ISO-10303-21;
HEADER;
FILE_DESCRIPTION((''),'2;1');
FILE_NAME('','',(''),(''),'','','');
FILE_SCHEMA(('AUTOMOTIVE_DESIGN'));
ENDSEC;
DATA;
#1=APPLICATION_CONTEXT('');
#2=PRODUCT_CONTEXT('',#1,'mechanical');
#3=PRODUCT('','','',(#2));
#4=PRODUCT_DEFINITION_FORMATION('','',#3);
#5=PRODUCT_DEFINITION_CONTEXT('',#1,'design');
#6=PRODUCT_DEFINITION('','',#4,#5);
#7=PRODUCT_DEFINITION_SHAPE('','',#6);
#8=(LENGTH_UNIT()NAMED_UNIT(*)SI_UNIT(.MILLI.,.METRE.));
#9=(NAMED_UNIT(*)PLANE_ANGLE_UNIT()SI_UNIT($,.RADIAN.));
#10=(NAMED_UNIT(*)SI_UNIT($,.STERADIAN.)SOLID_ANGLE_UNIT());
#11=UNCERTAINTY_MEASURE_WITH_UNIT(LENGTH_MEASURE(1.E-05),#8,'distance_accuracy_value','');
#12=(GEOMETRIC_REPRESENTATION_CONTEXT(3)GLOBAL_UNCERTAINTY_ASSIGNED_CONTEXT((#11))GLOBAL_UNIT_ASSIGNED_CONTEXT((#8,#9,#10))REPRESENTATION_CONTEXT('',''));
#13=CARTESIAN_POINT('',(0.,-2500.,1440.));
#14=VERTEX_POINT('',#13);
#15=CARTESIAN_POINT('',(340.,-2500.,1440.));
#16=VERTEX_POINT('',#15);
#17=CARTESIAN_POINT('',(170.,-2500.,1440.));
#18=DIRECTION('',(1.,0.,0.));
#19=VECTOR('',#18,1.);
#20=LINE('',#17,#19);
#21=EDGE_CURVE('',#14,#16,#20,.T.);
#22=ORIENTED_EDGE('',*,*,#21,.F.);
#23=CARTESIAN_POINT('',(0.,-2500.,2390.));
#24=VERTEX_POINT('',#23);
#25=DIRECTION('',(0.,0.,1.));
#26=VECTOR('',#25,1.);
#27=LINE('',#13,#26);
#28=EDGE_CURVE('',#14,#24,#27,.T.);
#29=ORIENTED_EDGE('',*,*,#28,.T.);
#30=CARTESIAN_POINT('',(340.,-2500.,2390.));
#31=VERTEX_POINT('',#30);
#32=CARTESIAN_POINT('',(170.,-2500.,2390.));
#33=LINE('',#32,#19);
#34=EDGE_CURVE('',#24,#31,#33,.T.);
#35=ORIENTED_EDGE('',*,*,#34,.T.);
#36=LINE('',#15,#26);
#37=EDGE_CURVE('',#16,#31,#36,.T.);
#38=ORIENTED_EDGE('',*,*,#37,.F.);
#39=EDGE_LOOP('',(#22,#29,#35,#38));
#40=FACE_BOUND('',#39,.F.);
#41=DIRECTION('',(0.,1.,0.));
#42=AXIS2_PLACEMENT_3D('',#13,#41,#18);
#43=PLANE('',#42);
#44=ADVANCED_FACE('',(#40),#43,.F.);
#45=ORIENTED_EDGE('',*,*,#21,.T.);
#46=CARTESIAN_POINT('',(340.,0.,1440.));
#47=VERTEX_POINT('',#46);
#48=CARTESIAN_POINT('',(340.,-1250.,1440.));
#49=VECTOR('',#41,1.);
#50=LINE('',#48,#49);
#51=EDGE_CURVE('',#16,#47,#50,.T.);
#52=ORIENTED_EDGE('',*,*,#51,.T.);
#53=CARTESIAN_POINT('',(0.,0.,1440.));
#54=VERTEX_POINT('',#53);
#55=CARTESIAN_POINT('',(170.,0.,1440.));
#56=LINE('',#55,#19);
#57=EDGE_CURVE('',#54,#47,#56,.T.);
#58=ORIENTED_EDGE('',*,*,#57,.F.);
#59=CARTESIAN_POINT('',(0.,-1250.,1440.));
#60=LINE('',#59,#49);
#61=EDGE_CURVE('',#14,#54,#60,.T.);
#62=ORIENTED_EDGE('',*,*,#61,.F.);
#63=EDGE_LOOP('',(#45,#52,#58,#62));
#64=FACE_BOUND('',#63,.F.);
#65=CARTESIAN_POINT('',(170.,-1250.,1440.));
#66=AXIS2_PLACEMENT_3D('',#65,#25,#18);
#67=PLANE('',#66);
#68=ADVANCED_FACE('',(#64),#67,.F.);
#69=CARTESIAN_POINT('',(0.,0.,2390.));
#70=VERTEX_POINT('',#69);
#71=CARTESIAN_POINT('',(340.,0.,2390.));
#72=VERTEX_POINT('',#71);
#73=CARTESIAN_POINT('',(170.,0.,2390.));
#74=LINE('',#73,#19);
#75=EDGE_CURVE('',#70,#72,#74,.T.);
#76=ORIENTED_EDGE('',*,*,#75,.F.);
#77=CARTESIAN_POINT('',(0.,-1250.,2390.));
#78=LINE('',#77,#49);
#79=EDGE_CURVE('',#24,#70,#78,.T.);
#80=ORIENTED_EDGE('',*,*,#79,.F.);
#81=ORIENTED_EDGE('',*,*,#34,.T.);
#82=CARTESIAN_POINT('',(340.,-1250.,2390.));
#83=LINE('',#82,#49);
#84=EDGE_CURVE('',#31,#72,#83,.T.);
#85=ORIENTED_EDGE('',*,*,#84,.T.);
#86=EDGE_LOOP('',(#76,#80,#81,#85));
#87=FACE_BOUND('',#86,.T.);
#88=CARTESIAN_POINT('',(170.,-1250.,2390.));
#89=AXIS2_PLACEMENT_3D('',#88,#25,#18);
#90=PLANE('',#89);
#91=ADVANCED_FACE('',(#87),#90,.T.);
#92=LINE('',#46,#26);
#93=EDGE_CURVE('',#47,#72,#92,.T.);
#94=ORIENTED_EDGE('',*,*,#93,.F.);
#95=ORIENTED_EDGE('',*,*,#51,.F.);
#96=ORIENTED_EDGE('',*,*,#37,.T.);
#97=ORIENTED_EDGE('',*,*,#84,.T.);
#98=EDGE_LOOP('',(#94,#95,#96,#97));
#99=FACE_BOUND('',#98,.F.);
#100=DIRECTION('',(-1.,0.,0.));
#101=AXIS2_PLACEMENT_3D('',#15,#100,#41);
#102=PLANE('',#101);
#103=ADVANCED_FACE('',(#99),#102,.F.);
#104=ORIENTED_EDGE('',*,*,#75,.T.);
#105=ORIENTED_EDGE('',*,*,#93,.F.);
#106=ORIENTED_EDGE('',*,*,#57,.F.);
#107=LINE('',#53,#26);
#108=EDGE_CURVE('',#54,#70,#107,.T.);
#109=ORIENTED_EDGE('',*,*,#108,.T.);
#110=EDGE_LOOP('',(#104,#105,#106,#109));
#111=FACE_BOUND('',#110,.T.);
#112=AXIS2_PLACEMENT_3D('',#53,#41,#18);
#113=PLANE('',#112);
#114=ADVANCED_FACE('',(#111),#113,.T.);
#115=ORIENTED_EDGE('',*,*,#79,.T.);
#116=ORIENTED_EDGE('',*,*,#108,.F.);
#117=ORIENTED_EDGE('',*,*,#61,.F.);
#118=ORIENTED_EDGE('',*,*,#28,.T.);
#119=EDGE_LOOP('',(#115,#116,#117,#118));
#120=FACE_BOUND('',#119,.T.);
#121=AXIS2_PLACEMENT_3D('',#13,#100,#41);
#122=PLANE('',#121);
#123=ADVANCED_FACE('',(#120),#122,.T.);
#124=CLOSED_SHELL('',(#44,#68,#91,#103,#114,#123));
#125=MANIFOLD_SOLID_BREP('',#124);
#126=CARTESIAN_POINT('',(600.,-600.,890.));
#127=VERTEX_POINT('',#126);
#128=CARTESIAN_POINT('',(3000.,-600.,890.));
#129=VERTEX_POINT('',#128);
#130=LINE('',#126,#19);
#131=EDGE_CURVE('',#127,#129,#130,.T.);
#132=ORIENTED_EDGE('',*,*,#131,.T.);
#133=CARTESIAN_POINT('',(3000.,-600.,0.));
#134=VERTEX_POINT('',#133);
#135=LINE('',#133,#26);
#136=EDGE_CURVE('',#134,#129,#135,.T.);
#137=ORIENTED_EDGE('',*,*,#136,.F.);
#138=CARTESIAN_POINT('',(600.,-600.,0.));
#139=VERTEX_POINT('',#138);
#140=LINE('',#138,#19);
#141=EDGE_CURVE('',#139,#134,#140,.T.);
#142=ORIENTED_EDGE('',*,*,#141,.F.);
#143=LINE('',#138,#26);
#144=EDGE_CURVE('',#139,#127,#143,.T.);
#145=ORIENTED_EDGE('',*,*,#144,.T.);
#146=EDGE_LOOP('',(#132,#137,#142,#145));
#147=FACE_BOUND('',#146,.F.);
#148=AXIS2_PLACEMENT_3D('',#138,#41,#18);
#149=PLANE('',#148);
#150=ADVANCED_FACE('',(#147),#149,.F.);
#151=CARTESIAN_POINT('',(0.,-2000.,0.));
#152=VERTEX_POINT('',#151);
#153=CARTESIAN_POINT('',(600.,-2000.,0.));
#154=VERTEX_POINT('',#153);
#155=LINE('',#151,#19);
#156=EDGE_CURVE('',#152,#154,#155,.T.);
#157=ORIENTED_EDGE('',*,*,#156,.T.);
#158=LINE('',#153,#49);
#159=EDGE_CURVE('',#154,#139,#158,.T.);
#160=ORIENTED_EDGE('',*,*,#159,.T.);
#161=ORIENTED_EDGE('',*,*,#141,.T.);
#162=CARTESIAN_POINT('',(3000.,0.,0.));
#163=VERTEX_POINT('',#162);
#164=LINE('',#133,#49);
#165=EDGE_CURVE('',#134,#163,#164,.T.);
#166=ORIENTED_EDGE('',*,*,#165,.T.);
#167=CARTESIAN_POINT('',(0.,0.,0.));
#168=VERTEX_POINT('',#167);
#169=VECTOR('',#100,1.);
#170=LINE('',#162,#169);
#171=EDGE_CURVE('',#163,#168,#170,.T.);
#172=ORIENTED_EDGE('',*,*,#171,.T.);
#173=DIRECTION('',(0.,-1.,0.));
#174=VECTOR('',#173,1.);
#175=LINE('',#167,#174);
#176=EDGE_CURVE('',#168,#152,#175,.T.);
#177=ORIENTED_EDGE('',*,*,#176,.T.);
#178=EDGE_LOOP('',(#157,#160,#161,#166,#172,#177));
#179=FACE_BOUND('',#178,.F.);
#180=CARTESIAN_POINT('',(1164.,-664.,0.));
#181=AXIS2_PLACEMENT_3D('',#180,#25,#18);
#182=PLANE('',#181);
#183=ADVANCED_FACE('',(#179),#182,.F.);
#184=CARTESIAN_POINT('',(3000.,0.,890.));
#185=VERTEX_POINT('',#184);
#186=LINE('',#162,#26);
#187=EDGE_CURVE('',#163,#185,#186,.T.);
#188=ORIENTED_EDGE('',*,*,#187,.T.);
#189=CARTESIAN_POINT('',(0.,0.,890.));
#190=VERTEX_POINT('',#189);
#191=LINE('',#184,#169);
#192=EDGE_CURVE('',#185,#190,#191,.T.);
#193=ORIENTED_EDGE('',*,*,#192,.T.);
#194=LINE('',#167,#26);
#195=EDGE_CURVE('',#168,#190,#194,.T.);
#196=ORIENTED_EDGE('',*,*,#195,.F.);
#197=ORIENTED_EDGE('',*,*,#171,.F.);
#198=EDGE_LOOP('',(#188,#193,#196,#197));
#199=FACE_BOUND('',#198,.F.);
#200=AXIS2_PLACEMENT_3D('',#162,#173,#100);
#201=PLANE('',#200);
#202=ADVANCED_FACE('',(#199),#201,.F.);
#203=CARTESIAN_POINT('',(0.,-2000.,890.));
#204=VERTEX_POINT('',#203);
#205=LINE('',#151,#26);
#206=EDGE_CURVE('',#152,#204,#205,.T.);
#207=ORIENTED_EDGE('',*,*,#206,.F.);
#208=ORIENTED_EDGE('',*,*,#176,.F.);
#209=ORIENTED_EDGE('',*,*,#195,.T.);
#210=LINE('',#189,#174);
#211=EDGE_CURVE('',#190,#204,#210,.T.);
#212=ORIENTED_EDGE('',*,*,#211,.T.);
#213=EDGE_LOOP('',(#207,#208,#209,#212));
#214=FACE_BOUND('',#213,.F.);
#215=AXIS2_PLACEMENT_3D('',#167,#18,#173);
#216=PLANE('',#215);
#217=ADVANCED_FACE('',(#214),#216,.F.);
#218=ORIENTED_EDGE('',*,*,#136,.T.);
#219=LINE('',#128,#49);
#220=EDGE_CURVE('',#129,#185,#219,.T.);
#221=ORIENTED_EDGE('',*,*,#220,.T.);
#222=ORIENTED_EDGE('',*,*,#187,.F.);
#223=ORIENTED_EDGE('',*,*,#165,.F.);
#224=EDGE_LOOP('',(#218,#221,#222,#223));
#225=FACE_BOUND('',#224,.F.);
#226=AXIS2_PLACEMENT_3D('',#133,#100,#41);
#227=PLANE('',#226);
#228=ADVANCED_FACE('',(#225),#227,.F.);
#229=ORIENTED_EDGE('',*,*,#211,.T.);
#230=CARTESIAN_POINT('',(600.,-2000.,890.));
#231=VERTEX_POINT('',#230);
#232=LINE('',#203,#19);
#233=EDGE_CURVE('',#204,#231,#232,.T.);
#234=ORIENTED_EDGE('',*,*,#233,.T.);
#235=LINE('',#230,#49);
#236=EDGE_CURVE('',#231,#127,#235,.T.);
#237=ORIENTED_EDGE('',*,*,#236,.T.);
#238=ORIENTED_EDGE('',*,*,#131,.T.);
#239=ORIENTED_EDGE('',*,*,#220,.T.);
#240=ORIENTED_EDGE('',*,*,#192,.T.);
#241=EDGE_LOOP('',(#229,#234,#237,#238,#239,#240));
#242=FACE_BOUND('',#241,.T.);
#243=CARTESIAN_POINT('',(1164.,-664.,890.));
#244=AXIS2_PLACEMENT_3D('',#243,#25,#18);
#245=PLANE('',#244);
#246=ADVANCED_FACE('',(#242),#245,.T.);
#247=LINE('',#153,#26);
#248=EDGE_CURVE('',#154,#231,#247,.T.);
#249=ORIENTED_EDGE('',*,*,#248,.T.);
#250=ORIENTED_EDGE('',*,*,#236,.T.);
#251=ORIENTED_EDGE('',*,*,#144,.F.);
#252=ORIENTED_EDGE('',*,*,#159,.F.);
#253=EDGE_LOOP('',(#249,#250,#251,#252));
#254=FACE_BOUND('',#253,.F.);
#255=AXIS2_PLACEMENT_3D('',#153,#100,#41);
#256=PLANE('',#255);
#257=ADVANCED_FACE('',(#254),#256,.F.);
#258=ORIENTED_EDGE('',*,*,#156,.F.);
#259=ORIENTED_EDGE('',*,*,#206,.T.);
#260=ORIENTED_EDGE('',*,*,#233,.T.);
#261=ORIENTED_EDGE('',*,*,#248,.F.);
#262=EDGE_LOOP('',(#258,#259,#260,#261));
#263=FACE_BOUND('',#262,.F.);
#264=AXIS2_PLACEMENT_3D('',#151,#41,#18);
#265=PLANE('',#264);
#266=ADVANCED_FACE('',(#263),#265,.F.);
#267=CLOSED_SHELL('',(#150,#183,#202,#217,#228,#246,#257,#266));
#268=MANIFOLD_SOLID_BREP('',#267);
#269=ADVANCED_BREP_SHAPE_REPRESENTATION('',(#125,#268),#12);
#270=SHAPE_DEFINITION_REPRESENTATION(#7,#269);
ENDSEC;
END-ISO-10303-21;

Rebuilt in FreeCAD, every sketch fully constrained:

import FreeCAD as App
import Part
import Sketcher

V = App.Vector


def add_polygon(sketch, points):
    """Adds a closed chain of lines whose ends are joined by coincident constraints."""
    first, n = sketch.GeometryCount, len(points)
    for a, b in zip(points, points[1:] + points[:1]):
        sketch.addGeometry(Part.LineSegment(App.Vector(*a, 0), App.Vector(*b, 0)), False)
    for i in range(n):
        sketch.addConstraint(Sketcher.Constraint("Coincident", first + i, 2, first + (i + 1) % n, 1))

doc = App.newDocument("Part")
body = doc.addObject("PartDesign::Body", "Body")

# Sketch on XY plane
sketch1 = body.newObject("Sketcher::SketchObject", "Sketch")
sketch1.AttachmentSupport = (doc.getObject("XY_Plane"), [""])
sketch1.MapMode = "FlatFace"
add_polygon(sketch1, [(3000, 0), (0, 0), (0, -2000), (600, -2000), (600, -600), (3000, -600)])  # lines 0-5
sketch1.addConstraint(Sketcher.Constraint("Horizontal", 0))
sketch1.addConstraint(Sketcher.Constraint("Vertical", 1))
sketch1.addConstraint(Sketcher.Constraint("Horizontal", 2))
sketch1.addConstraint(Sketcher.Constraint("Vertical", 3))
sketch1.addConstraint(Sketcher.Constraint("Horizontal", 4))
sketch1.addConstraint(Sketcher.Constraint("Vertical", 5))
sketch1.addConstraint(Sketcher.Constraint("Coincident", 0, 2, -1, 1))
sketch1.addConstraint(Sketcher.Constraint("Equal", 2, 5))
sketch1.addConstraint(Sketcher.Constraint("DistanceX", 0, 2, 0, 1, 3000.0))
sketch1.addConstraint(Sketcher.Constraint("DistanceX", 2, 1, 2, 2, 600.0))
sketch1.addConstraint(Sketcher.Constraint("DistanceY", 1, 2, 1, 1, 2000.0))
pad1 = body.newObject("PartDesign::Pad", "Pad")
pad1.Profile = sketch1
pad1.Length = 890
body2 = doc.addObject("PartDesign::Body", "Body001")

# Sketch on XY plane
sketch2 = body2.newObject("Sketcher::SketchObject", "Sketch001")
sketch2.AttachmentSupport = (doc.getObject("XY_Plane001"), [""])
sketch2.MapMode = "FlatFace"
sketch2.AttachmentOffset = App.Placement(V(0, 0, 1440), App.Rotation())
add_polygon(sketch2, [(0, 0), (0, -2500), (340, -2500), (340, 0)])  # lines 0-3
sketch2.addConstraint(Sketcher.Constraint("Vertical", 0))
sketch2.addConstraint(Sketcher.Constraint("Horizontal", 1))
sketch2.addConstraint(Sketcher.Constraint("Vertical", 2))
sketch2.addConstraint(Sketcher.Constraint("Horizontal", 3))
sketch2.addConstraint(Sketcher.Constraint("Coincident", 3, 2, -1, 1))
sketch2.addConstraint(Sketcher.Constraint("DistanceX", 1, 1, 1, 2, 340.0))
sketch2.addConstraint(Sketcher.Constraint("DistanceY", 0, 2, 0, 1, 2500.0))
pad2 = body2.newObject("PartDesign::Pad", "Pad001")
pad2.Profile = sketch2
pad2.Length = 950

doc.recompute()
